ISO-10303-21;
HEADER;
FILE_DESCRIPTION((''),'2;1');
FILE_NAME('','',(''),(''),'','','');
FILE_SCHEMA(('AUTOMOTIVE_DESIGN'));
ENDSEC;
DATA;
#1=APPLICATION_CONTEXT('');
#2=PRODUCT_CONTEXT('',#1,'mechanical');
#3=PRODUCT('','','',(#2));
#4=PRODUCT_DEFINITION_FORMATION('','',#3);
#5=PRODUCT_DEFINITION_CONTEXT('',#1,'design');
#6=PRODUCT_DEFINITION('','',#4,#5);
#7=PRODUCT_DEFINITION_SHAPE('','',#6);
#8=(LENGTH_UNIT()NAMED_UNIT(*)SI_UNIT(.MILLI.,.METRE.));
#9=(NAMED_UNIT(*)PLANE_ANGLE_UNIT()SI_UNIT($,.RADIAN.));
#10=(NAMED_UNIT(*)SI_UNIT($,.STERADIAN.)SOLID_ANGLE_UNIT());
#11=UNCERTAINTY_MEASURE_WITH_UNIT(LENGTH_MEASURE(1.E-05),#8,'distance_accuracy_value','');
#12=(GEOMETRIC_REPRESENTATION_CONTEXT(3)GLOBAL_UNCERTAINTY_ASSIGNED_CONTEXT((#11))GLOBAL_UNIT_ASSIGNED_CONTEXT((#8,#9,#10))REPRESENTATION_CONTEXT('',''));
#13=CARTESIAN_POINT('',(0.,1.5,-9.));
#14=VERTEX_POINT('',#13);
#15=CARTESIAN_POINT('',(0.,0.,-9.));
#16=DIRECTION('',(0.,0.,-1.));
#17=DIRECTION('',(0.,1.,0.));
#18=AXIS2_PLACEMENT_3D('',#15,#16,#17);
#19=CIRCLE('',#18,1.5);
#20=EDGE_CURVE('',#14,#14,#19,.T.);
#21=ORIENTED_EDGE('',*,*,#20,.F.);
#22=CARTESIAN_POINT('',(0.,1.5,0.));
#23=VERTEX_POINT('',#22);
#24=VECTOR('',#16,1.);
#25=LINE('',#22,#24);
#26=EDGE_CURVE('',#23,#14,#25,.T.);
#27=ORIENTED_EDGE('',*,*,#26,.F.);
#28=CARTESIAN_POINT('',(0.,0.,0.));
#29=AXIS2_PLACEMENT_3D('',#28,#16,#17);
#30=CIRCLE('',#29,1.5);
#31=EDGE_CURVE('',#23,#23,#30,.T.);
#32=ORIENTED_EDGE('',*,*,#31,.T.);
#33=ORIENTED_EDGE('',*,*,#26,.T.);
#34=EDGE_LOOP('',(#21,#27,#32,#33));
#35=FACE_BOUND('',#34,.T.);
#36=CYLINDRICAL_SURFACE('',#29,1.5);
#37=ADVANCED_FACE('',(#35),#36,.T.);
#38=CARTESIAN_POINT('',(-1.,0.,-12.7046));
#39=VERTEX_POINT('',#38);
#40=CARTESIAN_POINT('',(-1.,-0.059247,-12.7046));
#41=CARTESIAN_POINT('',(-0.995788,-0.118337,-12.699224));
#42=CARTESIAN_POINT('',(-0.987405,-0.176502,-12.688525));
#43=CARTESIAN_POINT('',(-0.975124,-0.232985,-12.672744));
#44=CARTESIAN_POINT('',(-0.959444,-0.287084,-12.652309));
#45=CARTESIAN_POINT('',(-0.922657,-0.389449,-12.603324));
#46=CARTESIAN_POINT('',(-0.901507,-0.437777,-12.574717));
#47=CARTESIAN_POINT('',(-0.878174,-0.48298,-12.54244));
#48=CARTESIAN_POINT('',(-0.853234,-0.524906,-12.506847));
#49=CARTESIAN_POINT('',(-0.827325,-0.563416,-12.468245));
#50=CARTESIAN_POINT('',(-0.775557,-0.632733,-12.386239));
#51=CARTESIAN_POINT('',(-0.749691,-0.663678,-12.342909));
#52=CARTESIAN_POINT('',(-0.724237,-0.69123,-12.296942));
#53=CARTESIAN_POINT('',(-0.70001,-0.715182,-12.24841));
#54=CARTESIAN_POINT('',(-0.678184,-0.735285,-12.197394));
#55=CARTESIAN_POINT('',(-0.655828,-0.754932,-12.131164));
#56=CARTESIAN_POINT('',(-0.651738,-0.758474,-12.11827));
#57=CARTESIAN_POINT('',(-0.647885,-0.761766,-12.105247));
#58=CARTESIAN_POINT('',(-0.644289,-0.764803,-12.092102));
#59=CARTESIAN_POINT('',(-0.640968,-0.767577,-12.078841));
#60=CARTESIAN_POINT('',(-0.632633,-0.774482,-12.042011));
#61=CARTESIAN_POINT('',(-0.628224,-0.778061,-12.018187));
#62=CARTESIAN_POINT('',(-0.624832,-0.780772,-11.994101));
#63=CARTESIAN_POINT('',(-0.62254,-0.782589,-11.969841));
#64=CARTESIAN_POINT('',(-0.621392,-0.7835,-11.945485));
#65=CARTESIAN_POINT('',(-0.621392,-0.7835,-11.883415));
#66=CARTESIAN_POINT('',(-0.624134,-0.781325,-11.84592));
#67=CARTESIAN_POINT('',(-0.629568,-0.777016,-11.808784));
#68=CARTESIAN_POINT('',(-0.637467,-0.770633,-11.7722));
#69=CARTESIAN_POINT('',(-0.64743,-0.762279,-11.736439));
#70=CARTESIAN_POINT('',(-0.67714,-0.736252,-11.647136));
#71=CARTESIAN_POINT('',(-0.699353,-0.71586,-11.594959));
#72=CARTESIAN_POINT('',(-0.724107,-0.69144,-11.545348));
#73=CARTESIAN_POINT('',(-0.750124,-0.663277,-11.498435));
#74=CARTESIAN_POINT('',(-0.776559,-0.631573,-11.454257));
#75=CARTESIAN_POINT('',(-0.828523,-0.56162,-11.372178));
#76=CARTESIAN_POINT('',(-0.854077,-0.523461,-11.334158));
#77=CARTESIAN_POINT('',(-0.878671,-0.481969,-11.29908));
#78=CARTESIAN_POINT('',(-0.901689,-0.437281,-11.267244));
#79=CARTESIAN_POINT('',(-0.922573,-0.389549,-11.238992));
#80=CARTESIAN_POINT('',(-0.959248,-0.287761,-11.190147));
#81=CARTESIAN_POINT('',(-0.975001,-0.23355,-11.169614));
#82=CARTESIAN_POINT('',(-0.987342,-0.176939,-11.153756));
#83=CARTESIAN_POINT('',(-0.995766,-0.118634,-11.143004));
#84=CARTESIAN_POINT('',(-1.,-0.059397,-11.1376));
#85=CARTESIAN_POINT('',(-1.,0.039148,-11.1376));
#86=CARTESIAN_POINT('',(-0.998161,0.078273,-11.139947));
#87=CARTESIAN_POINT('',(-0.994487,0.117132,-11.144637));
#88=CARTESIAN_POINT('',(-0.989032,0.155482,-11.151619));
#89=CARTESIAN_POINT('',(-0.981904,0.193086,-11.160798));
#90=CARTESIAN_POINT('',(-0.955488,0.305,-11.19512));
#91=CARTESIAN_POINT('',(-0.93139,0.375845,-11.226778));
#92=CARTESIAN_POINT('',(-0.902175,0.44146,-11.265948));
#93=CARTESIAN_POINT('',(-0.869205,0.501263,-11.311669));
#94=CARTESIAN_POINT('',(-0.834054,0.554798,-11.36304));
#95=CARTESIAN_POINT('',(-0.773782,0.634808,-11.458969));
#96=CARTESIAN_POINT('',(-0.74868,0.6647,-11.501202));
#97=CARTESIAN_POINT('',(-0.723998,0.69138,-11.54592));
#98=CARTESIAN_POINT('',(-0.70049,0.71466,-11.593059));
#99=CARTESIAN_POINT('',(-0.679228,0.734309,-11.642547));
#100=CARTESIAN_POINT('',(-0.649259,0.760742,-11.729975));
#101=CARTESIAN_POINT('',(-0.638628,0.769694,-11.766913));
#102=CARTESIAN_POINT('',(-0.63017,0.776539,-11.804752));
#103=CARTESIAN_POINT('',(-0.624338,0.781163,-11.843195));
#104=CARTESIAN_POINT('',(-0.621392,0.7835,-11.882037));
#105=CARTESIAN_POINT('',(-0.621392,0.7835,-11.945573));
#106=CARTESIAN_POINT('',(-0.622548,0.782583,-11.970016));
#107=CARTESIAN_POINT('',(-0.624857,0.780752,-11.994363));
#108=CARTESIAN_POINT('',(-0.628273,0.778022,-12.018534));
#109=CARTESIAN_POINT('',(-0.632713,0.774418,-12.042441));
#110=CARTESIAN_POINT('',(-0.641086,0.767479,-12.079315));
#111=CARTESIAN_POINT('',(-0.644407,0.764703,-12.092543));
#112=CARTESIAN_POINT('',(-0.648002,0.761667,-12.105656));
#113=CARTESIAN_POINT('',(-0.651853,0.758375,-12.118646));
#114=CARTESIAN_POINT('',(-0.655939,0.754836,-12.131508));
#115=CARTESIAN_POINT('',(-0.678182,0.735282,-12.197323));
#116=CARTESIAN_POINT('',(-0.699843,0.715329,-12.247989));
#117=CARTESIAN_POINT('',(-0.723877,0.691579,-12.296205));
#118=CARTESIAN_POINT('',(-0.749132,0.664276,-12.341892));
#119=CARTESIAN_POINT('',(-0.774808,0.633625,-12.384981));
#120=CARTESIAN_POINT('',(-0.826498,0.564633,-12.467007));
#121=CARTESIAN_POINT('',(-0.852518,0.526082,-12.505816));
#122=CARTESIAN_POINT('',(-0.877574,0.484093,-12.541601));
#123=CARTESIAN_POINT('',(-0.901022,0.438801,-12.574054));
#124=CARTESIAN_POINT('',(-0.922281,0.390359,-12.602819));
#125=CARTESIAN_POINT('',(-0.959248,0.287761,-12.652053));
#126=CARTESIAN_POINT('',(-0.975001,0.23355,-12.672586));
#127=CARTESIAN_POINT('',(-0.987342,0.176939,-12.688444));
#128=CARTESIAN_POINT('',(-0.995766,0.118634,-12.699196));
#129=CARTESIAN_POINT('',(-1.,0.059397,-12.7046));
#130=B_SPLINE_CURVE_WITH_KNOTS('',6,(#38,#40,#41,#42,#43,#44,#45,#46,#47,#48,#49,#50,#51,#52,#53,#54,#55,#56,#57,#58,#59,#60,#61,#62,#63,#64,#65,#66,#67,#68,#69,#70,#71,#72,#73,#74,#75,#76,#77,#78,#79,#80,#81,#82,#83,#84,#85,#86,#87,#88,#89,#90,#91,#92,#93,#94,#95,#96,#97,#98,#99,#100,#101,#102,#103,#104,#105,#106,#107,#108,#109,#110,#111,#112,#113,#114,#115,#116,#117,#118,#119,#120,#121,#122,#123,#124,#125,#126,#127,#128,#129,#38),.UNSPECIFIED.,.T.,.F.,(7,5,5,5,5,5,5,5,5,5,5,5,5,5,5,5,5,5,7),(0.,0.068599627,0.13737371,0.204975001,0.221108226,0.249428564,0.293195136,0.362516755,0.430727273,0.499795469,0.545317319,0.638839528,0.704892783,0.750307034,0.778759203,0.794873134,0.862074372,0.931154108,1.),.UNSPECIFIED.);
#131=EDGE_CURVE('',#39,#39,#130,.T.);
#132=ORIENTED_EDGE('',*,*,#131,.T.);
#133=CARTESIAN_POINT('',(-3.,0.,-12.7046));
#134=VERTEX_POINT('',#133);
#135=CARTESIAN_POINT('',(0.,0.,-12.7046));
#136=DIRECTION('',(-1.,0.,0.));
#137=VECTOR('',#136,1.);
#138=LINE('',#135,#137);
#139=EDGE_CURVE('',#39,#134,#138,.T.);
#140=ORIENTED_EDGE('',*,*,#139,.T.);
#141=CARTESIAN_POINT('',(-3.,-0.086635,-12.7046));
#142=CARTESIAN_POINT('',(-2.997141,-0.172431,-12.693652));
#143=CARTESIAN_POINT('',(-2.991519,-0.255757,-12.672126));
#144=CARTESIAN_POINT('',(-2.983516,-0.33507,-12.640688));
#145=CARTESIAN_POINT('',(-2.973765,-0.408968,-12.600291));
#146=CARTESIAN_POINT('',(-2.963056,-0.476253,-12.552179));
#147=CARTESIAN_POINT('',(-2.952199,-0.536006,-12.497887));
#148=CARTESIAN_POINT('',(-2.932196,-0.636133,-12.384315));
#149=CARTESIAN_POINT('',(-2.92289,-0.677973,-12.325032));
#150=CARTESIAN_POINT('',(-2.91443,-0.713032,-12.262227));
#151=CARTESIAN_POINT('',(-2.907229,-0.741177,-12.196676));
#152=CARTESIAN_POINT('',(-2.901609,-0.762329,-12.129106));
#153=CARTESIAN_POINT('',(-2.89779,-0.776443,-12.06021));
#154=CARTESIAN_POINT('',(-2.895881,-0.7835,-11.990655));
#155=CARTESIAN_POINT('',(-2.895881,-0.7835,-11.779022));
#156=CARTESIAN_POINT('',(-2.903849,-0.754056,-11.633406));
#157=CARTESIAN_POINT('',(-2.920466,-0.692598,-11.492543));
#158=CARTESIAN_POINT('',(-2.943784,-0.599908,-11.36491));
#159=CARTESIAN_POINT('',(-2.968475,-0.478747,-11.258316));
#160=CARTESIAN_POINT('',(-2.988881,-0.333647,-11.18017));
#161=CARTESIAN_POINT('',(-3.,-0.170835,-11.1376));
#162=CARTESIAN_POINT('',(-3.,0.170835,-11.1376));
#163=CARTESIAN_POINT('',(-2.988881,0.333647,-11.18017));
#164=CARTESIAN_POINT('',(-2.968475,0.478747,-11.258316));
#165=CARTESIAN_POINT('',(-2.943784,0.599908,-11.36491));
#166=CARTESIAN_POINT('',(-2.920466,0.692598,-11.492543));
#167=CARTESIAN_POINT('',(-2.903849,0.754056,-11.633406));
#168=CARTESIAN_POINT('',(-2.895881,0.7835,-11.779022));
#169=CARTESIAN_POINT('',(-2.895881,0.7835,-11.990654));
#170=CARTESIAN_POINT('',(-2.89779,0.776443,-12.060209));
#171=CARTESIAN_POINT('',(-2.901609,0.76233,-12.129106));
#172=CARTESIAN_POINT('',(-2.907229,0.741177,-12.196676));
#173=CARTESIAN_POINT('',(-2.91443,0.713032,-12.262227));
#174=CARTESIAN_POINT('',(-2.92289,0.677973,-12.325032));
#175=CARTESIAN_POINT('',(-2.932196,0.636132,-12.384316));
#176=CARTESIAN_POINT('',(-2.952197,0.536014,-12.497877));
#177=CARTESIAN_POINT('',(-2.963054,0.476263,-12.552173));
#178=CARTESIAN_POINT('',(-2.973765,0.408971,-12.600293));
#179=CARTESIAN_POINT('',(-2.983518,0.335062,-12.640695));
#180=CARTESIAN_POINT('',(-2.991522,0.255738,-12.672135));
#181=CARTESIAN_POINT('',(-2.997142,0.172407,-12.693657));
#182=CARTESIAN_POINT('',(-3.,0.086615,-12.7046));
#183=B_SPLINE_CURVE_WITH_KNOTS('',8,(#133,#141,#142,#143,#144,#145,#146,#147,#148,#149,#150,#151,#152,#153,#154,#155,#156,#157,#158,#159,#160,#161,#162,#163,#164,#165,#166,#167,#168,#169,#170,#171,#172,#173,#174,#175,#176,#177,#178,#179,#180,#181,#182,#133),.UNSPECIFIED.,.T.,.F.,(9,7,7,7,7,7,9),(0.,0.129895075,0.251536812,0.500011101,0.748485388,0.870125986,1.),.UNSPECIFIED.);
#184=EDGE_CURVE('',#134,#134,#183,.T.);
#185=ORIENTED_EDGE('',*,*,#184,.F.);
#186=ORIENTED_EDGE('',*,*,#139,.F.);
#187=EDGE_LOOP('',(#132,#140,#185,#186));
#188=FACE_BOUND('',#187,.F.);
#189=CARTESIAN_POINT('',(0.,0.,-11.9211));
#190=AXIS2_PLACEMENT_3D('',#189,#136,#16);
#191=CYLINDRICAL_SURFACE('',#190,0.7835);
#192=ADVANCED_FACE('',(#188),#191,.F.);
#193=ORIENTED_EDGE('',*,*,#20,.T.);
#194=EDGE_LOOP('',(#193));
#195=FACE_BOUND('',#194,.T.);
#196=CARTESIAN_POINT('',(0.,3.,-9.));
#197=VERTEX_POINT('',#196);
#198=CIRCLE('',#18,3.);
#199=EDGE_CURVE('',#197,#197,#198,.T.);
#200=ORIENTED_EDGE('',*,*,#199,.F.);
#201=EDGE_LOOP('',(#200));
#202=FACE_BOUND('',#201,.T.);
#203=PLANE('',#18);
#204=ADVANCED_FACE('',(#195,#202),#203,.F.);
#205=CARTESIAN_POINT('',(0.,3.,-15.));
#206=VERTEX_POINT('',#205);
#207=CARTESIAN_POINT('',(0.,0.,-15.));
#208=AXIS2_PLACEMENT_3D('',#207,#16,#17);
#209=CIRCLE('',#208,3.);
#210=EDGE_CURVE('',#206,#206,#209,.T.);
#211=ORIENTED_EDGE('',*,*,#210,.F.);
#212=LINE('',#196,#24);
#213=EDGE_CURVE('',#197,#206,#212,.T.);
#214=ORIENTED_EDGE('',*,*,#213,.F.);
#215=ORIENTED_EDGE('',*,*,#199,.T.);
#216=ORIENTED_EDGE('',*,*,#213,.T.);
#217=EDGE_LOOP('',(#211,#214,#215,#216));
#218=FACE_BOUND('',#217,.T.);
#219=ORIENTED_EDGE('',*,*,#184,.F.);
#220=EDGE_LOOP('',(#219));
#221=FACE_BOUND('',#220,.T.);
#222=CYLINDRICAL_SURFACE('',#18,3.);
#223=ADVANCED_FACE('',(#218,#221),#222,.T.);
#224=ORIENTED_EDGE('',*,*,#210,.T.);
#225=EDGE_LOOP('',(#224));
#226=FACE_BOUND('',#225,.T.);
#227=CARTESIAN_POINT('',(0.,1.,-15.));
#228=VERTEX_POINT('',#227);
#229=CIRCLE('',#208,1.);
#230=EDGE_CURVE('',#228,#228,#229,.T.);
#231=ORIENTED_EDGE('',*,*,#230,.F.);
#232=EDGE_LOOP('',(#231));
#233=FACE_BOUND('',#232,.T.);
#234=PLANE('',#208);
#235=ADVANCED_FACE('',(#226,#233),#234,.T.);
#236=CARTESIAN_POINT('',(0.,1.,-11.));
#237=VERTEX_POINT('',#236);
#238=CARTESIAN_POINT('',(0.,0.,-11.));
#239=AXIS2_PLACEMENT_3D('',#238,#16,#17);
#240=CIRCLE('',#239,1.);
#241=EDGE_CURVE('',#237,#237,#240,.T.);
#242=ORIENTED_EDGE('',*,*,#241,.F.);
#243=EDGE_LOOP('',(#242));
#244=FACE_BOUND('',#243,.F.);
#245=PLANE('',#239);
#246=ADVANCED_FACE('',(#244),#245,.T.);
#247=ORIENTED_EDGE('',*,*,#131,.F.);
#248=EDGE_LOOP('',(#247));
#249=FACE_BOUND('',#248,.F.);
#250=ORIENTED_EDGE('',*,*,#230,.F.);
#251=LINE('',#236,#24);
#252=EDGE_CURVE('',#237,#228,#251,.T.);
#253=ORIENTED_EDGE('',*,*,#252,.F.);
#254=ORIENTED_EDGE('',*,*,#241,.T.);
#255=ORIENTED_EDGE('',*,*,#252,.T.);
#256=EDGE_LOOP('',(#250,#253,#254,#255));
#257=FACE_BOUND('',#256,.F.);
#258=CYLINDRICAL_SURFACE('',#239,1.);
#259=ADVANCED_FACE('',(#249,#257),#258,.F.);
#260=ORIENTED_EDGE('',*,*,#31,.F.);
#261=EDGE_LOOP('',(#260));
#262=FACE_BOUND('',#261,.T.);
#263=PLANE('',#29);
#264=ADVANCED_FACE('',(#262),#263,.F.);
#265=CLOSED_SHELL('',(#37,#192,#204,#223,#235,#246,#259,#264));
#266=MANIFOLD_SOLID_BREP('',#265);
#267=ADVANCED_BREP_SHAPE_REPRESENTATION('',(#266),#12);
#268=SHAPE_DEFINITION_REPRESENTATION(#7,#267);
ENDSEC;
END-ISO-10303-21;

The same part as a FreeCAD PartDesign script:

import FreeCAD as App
import Part
import Sketcher
from FreeCAD import Vector


def add_polygon(sketch, points):
    """Adds a closed chain of lines whose ends are joined by coincident constraints."""
    first, n = sketch.GeometryCount, len(points)
    for a, b in zip(points, points[1:] + points[:1]):
        sketch.addGeometry(Part.LineSegment(App.Vector(*a, 0), App.Vector(*b, 0)), False)
    for i in range(n):
        sketch.addConstraint(Sketcher.Constraint("Coincident", first + i, 2, first + (i + 1) % n, 1))

doc = App.newDocument("Part")
body = doc.addObject("PartDesign::Body", "Body")

# Sketch on YZ plane
sketch1 = body.newObject("Sketcher::SketchObject", "Sketch")
sketch1.AttachmentSupport = (doc.getObject("YZ_Plane"), [""])
sketch1.MapMode = "FlatFace"
add_polygon(sketch1, [(1.5, 0), (0, 0), (0, -11), (1, -11), (1, -15), (3, -15), (3, -9), (1.5, -9)])  # lines 0-7
sketch1.addConstraint(Sketcher.Constraint("Horizontal", 0))
sketch1.addConstraint(Sketcher.Constraint("Vertical", 1))
sketch1.addConstraint(Sketcher.Constraint("Horizontal", 2))
sketch1.addConstraint(Sketcher.Constraint("Vertical", 3))
sketch1.addConstraint(Sketcher.Constraint("Horizontal", 4))
sketch1.addConstraint(Sketcher.Constraint("Vertical", 5))
sketch1.addConstraint(Sketcher.Constraint("Horizontal", 6))
sketch1.addConstraint(Sketcher.Constraint("Vertical", 7))
sketch1.addConstraint(Sketcher.Constraint("Coincident", 0, 2, -1, 1))
sketch1.addConstraint(Sketcher.Constraint("Equal", 0, 6))
sketch1.addConstraint(Sketcher.Constraint("DistanceX", 2, 1, 2, 2, 1.0))
sketch1.addConstraint(Sketcher.Constraint("DistanceX", 4, 1, 4, 2, 2.0))
sketch1.addConstraint(Sketcher.Constraint("DistanceY", 3, 2, 3, 1, 4.0))
sketch1.addConstraint(Sketcher.Constraint("DistanceY", 7, 1, 7, 2, 9.0))
sketch1.addConstraint(Sketcher.Constraint("DistanceY", 2, 2, 5, 2, 2.0))
revolution = body.newObject("PartDesign::Revolution", "Revolution")
revolution.Profile = sketch1
revolution.ReferenceAxis = (sketch1, ["V_Axis"])
revolution.Angle = 360

# Sketch on YZ plane
sketch2 = body.newObject("Sketcher::SketchObject", "Sketch001")
sketch2.AttachmentSupport = (doc.getObject("YZ_Plane"), [""])
sketch2.MapMode = "FlatFace"
sketch2.addGeometry(Part.Circle(Vector(0, -11.9, 0), Vector(0, 0, 1), 0.8), False)
sketch2.addConstraint(Sketcher.Constraint("PointOnObject", 0, 3, -2))
sketch2.addConstraint(Sketcher.Constraint("Diameter", 0, 1.567))
sketch2.addConstraint(Sketcher.Constraint("DistanceY", 0, 3, -1, 1, 11.921))
doc.recompute()
hole = body.newObject("PartDesign::Hole", "Hole")
hole.Profile = sketch2
hole.ThreadType = "None"
hole.Diameter = 1.567
hole.DepthType = "ThroughAll"

doc.recompute()
